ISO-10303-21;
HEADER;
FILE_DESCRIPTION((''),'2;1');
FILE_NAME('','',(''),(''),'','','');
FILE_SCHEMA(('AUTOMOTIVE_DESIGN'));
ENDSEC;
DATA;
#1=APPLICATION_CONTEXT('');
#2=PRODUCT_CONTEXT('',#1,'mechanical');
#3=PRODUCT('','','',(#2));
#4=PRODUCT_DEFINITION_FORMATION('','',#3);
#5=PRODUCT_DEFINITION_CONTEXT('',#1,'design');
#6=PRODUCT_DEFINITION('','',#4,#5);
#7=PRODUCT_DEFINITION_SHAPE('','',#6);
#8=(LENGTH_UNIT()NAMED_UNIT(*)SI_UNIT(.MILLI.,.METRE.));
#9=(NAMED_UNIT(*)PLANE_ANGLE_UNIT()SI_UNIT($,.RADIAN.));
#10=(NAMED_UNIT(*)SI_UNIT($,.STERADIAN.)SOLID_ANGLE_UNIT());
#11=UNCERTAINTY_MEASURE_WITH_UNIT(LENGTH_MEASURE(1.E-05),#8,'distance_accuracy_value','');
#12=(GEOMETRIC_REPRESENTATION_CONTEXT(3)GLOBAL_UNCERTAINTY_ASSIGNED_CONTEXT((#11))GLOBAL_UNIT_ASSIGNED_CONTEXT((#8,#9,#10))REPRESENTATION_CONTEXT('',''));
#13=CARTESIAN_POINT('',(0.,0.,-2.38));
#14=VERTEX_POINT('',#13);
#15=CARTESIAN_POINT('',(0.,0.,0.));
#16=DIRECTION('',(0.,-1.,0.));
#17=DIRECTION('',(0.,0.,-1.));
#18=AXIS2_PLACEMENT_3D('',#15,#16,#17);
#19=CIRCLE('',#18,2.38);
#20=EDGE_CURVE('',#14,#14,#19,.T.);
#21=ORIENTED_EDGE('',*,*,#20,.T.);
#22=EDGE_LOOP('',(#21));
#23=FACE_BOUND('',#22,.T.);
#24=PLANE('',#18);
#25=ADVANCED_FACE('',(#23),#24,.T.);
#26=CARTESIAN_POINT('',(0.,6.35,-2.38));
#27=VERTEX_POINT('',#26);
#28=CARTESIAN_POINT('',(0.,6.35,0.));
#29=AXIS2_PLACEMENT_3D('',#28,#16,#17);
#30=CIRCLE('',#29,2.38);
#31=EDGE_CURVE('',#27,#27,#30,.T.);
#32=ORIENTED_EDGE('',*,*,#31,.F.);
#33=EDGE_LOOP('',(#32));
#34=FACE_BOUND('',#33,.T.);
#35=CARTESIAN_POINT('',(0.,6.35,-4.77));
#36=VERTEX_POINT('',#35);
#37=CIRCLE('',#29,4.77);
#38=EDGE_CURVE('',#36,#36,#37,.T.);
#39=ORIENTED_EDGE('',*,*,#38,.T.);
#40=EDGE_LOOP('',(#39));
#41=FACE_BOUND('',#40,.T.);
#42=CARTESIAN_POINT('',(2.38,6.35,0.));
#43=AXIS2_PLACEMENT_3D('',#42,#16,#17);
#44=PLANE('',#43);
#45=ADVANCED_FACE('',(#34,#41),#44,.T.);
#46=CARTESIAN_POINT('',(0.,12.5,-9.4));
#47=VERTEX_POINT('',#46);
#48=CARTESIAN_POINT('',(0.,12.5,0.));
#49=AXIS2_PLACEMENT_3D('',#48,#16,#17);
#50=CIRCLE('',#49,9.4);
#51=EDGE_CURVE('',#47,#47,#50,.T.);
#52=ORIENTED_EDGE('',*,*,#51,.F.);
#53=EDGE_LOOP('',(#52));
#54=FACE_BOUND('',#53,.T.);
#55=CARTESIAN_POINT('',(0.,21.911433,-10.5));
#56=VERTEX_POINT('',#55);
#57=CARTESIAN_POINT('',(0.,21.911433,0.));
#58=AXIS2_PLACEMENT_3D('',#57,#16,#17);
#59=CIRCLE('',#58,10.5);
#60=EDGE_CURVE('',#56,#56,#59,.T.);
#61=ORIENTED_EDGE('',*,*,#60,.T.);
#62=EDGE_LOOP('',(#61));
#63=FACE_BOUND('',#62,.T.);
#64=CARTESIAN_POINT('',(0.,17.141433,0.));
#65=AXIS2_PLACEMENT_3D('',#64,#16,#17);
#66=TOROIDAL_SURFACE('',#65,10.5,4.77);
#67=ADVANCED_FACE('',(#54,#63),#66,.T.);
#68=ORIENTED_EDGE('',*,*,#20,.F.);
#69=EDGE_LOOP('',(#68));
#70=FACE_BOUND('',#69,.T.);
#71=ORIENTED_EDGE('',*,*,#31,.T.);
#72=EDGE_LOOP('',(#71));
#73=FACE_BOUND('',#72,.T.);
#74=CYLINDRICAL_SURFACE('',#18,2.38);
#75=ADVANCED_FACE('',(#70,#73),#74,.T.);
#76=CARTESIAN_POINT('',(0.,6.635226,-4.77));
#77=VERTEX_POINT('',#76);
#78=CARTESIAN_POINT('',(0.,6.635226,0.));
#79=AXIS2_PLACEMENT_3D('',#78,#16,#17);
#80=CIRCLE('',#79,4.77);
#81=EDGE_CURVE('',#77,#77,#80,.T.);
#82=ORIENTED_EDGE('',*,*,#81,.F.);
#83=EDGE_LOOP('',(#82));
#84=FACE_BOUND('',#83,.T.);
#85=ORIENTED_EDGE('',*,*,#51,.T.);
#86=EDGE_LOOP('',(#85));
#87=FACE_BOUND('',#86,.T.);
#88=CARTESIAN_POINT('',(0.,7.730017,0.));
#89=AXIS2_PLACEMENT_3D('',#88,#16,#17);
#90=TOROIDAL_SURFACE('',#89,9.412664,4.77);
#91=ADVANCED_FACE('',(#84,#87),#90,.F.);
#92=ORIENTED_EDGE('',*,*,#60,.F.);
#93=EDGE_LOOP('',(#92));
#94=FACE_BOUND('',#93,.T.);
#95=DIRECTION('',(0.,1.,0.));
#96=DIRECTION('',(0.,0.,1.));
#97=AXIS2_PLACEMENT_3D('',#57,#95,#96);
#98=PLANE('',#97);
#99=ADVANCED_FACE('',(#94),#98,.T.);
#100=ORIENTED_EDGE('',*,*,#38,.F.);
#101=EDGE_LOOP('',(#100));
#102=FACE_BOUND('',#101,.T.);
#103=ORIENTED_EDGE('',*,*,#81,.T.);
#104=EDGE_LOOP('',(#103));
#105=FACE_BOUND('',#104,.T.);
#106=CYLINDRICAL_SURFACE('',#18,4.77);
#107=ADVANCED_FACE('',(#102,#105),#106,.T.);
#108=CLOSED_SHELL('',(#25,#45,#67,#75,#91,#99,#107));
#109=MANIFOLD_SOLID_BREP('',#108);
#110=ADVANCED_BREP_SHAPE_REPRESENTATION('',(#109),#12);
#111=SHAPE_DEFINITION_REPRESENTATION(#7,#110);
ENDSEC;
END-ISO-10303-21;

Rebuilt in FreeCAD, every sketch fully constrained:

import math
import FreeCAD as App
import Part
import Sketcher

V = App.Vector
Q = App.Units.Quantity

doc = App.newDocument("Part")
params = doc.addObject("Spreadsheet::Sheet", "Params")
for row, (alias, value) in enumerate([
    ("sketch1_radius", "4.77 mm"),
    ("sketch1_width", "10.5 mm"),
    ("sketch1_width2", "2.38 mm"),
    ("sketch1_width3", "2.39 mm"),
    ("sketch1_height", "6.35 mm"),
    ("revolution_angle", "360 deg"),
], start=1):
    params.set(f"A{row}", alias)
    params.set(f"B{row}", "=" + value)
    params.setAlias(f"B{row}", alias)

body = doc.addObject("PartDesign::Body", "Body")

# Sketch on XY plane
sketch1 = body.newObject("Sketcher::SketchObject", "Sketch")
sketch1.AttachmentSupport = (doc.getObject("XY_Plane"), [""])
sketch1.MapMode = "FlatFace"
sketch1.addGeometry([
    Part.LineSegment(V(0, 0, 0), V(2.38, 0, 0)),  # 0
    Part.LineSegment(V(2.38, 0, 0), V(2.38, 6.35, 0)),  # 1
    Part.LineSegment(V(2.38, 6.35, 0), V(4.77, 6.35, 0)),  # 2
    Part.LineSegment(V(4.77, 6.35, 0), V(4.77, 6.64, 0)),  # 3
    Part.ArcOfCircle(Part.Circle(V(9.41, 7.73, 0), V(0, 0, 1), 4.77), math.radians(90), math.radians(193)),  # 4
    Part.ArcOfCircle(Part.Circle(V(10.5, 17.14, 0), V(0, 0, 1), 4.77), math.radians(-103), math.radians(90)),  # 5
    Part.LineSegment(V(10.5, 21.91, 0), V(0, 21.91, 0)),  # 6
    Part.LineSegment(V(0, 21.91, 0), V(0, 0, 0)),  # 7
], False)
sketch1.addConstraint([
    Sketcher.Constraint("Coincident", 0, 2, 1, 1),
    Sketcher.Constraint("Coincident", 1, 2, 2, 1),
    Sketcher.Constraint("Coincident", 2, 2, 3, 1),
    Sketcher.Constraint("Coincident", 3, 2, 4, 2),
    Sketcher.Constraint("Coincident", 4, 1, 5, 1),
    Sketcher.Constraint("Tangent", 5, 2, 6, 1),
    Sketcher.Constraint("Coincident", 6, 2, 7, 1),
    Sketcher.Constraint("Coincident", 7, 2, 0, 1),
    Sketcher.Constraint("Horizontal", 0),
    Sketcher.Constraint("Vertical", 1),
    Sketcher.Constraint("Horizontal", 2),
    Sketcher.Constraint("Vertical", 3),
    Sketcher.Constraint("Horizontal", 6),
    Sketcher.Constraint("Vertical", 7),
    Sketcher.Constraint("Coincident", 7, 2, -1, 1),
    Sketcher.Constraint("Equal", 4, 5),
    Sketcher.Constraint("Radius", 4, Q("4.77 mm")),
    Sketcher.Constraint("DistanceX", 6, 2, 6, 1, Q("10.5 mm")),
    Sketcher.Constraint("DistanceX", 0, 1, 0, 2, Q("2.38 mm")),
    Sketcher.Constraint("DistanceX", 2, 1, 2, 2, Q("2.39 mm")),
    Sketcher.Constraint("DistanceY", 1, 1, 1, 2, Q("6.35 mm")),
    Sketcher.Constraint("DistanceX", -1, 1, 4, 1, Q("9.4 mm")),
    Sketcher.Constraint("DistanceY", -1, 1, 4, 1, Q("12.5 mm")),
    Sketcher.Constraint("DistanceY", 3, 1, 3, 2, Q("0.285226 mm")),
])
sketch1.setExpression("Constraints[16]", "Params.sketch1_radius")
sketch1.setExpression("Constraints[17]", "Params.sketch1_width")
sketch1.setExpression("Constraints[18]", "Params.sketch1_width2")
sketch1.setExpression("Constraints[19]", "Params.sketch1_width3")
sketch1.setExpression("Constraints[20]", "Params.sketch1_height")
revolution = body.newObject("PartDesign::Revolution", "Revolution")
revolution.Profile = sketch1
revolution.ReferenceAxis = (sketch1, ["V_Axis"])
revolution.setExpression("Angle", "Params.revolution_angle")

doc.recompute()
